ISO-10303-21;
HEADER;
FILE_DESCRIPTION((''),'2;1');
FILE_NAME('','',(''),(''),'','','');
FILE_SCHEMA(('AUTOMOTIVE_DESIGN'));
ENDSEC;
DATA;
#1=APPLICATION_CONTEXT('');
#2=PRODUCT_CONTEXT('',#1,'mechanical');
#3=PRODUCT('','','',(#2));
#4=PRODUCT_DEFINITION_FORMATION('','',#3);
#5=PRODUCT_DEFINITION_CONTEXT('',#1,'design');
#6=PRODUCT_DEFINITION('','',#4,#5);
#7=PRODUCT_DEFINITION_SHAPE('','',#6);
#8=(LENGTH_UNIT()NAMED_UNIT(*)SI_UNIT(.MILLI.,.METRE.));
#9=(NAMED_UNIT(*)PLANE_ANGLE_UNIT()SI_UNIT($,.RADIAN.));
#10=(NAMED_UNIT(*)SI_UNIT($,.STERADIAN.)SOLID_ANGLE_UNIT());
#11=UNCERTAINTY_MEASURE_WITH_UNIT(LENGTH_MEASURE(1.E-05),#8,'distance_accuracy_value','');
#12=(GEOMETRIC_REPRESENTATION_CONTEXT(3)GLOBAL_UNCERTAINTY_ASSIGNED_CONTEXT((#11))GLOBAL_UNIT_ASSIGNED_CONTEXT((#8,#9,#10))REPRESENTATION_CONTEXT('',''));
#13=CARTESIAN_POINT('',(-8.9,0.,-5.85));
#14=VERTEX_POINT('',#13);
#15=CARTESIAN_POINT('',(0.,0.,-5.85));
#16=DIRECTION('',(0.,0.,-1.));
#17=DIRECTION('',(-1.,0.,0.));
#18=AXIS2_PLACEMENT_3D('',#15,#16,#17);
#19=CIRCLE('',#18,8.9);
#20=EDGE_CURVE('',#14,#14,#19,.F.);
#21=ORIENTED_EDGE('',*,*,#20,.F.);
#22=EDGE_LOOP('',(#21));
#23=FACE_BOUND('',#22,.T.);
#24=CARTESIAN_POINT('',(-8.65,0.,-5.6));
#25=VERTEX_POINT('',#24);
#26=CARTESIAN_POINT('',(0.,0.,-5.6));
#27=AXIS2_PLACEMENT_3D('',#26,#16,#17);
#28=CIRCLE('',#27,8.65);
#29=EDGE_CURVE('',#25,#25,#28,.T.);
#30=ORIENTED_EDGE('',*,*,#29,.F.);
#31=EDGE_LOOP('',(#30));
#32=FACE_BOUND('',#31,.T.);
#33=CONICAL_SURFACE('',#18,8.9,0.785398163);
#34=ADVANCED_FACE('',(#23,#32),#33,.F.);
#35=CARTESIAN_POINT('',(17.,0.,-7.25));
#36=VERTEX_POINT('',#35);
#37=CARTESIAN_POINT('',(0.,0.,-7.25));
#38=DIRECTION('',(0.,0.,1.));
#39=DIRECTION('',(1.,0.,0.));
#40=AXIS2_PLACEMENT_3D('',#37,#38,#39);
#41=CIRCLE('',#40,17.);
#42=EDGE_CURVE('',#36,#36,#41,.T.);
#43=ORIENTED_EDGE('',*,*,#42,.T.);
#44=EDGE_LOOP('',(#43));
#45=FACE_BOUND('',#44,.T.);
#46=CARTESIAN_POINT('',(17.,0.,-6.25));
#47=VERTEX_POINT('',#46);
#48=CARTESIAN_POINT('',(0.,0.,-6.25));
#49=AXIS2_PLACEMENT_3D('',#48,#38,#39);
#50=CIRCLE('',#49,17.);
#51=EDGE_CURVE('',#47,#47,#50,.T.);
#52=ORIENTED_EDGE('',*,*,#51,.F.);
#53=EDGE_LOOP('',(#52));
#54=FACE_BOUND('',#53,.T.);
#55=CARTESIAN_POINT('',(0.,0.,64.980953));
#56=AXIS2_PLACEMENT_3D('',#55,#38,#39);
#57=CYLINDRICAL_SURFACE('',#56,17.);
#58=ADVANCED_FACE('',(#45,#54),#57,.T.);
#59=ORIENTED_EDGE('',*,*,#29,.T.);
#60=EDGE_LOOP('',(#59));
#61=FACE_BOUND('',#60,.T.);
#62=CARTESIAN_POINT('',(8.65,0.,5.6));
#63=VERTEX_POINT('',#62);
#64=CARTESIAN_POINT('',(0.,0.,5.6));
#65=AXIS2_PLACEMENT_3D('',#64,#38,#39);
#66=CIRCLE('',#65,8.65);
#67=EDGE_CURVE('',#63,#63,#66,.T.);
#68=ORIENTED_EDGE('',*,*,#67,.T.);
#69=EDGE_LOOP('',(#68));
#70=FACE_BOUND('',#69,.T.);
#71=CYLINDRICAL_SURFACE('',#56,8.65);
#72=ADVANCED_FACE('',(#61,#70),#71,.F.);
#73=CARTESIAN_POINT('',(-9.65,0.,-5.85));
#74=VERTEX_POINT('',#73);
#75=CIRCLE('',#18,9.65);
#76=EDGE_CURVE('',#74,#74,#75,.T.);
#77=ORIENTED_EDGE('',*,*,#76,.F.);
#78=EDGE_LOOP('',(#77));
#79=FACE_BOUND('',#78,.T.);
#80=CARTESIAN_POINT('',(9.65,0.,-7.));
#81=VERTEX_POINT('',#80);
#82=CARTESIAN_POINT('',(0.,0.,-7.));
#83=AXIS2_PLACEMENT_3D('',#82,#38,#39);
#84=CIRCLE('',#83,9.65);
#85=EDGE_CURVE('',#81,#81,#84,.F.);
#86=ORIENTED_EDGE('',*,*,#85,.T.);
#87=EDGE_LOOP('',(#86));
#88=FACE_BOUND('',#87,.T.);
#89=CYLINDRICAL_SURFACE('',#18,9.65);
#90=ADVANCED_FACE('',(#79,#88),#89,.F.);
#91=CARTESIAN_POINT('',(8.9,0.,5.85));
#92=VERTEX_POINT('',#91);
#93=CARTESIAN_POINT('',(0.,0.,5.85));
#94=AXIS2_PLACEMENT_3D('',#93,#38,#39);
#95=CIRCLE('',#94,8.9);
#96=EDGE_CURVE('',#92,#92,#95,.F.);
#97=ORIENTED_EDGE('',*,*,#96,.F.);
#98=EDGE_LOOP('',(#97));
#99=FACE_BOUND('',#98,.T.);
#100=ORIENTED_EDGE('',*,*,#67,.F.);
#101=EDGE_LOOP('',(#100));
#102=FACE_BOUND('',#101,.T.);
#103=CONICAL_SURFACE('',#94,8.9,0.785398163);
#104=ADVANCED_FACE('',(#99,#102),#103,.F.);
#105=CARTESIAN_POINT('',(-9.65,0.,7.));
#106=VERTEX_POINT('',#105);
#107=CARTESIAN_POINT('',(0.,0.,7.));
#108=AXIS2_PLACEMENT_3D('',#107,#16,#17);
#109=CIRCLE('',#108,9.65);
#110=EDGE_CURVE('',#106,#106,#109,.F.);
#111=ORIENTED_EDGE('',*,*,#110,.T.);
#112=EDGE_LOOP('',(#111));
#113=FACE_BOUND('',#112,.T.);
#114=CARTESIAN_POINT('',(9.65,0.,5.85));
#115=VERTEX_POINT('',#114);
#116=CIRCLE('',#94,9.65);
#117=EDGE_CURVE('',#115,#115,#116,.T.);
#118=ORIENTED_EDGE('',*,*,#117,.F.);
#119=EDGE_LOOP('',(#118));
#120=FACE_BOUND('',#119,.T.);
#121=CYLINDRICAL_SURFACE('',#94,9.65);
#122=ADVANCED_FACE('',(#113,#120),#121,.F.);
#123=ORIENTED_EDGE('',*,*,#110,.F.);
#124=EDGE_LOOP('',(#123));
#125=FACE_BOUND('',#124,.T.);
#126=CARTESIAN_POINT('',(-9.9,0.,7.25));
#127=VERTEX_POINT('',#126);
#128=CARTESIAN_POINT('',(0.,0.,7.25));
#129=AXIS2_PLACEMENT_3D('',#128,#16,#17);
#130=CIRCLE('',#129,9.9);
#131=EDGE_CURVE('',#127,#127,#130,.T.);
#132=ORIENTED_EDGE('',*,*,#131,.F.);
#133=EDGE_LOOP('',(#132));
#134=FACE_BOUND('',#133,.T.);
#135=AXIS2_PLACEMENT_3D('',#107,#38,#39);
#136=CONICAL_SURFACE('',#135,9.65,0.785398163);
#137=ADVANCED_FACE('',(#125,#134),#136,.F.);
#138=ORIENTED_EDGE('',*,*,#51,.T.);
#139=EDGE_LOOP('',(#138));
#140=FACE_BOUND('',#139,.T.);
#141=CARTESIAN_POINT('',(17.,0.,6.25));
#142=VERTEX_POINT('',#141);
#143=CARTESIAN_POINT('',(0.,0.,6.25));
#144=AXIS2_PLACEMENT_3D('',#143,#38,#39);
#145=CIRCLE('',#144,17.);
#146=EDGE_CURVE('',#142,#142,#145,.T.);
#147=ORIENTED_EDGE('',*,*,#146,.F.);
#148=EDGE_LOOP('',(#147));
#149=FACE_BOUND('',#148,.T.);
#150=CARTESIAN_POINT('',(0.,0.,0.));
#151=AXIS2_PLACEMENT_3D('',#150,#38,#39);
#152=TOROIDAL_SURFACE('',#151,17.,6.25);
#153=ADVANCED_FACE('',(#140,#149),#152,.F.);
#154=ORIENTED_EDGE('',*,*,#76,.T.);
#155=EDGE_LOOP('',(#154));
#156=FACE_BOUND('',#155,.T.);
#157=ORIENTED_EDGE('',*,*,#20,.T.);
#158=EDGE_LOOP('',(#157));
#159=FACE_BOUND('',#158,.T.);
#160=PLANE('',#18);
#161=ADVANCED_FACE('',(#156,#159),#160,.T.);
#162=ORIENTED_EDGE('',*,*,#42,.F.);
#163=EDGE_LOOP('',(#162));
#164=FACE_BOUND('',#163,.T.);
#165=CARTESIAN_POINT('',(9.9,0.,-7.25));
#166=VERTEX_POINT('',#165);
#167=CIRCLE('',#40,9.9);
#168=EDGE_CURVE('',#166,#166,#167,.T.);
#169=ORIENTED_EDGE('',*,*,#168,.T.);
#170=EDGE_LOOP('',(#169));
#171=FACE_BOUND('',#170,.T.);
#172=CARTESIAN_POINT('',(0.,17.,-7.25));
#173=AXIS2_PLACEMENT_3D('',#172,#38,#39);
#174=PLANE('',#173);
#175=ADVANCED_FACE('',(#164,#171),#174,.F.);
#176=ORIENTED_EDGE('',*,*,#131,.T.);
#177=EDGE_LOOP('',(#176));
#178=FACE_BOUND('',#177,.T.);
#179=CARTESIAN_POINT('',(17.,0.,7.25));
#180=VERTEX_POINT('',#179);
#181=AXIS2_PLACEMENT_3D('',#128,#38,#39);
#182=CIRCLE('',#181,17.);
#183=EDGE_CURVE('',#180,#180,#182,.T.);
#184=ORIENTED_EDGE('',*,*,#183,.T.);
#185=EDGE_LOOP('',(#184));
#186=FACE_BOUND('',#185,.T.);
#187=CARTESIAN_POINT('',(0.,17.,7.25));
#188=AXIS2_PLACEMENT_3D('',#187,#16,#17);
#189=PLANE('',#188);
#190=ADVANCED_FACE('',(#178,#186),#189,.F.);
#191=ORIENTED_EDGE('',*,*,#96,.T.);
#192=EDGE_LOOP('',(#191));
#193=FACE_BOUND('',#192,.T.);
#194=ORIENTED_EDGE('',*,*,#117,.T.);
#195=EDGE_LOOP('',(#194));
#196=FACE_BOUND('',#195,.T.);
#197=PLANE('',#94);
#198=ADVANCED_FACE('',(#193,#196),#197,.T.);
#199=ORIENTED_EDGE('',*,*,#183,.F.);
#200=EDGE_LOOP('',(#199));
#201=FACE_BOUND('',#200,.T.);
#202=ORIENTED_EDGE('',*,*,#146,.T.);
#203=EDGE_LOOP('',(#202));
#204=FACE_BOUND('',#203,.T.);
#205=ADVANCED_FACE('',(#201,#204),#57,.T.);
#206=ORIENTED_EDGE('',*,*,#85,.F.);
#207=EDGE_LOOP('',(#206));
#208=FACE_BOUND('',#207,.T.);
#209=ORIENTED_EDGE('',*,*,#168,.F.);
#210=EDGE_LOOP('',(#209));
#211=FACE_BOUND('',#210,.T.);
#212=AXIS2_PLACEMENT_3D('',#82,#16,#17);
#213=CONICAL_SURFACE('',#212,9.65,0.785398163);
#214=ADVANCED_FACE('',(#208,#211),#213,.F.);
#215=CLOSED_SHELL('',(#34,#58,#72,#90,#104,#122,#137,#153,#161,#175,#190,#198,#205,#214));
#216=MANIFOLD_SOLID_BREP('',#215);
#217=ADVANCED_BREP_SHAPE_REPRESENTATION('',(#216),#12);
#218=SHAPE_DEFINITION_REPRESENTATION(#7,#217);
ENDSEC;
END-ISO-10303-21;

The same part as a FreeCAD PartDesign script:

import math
import FreeCAD as App
import Part
import Sketcher
from FreeCAD import Vector


def edges_at(feature, points):
    """Names of the edges that pass closest to the given points."""
    edges = feature.Shape.Edges
    near = lambda p: min(range(len(edges)), key=lambda i: edges[i].distToShape(Part.Vertex(*p))[0])
    return sorted({f"Edge{near(p) + 1}" for p in points})

doc = App.newDocument("Part")
body = doc.addObject("PartDesign::Body", "Body")

# Sketch on YZ plane
sketch1 = doc.addObject("Sketcher::SketchObject", "Sketch")
body.addObject(sketch1)
sketch1.AttachmentSupport = (doc.YZ_Plane, [""])
sketch1.MapMode = "FlatFace"
sketch1.addGeometry(Part.LineSegment(Vector(17, 6.2, 0), Vector(17, 7.2, 0)), False)
sketch1.addGeometry(Part.LineSegment(Vector(17, 7.2, 0), Vector(8.7, 7.2, 0)), False)
sketch1.addGeometry(Part.LineSegment(Vector(8.7, 7.2, 0), Vector(8.7, -7.2, 0)), False)
sketch1.addGeometry(Part.LineSegment(Vector(8.7, -7.2, 0), Vector(17, -7.2, 0)), False)
sketch1.addGeometry(Part.LineSegment(Vector(17, -7.2, 0), Vector(17, -6.2, 0)), False)
sketch1.addGeometry(Part.ArcOfCircle(Part.Circle(Vector(17, 0, 0), Vector(0, 0, 1), 6.2), math.radians(90), math.radians(270)), False)
sketch1.addConstraint(Sketcher.Constraint("Coincident", 0, 2, 1, 1))
sketch1.addConstraint(Sketcher.Constraint("Coincident", 1, 2, 2, 1))
sketch1.addConstraint(Sketcher.Constraint("Coincident", 2, 2, 3, 1))
sketch1.addConstraint(Sketcher.Constraint("Coincident", 3, 2, 4, 1))
sketch1.addConstraint(Sketcher.Constraint("Coincident", 4, 2, 5, 2))
sketch1.addConstraint(Sketcher.Constraint("Coincident", 5, 1, 0, 1))
sketch1.addConstraint(Sketcher.Constraint("Vertical", 0))
sketch1.addConstraint(Sketcher.Constraint("Horizontal", 1))
sketch1.addConstraint(Sketcher.Constraint("Vertical", 2))
sketch1.addConstraint(Sketcher.Constraint("Horizontal", 3))
sketch1.addConstraint(Sketcher.Constraint("Vertical", 4))
sketch1.addConstraint(Sketcher.Constraint("Symmetric", 0, 2, 3, 2, -1))
sketch1.addConstraint(Sketcher.Constraint("PointOnObject", 5, 3, -1))
sketch1.addConstraint(Sketcher.Constraint("Vertical", 5, 3, 0, 2))
sketch1.addConstraint(Sketcher.Constraint("DistanceY", 0, 1, 0, 2, 1.0))
sketch1.addConstraint(Sketcher.Constraint("Radius", 5, 6.25))
sketch1.addConstraint(Sketcher.Constraint("DistanceX", -1, 1, 5, 3, 17.0))
sketch1.addConstraint(Sketcher.Constraint("DistanceX", 1, 2, 1, 1, 8.35))
revolution = doc.addObject("PartDesign::Revolution", "Revolution")
body.addObject(revolution)
revolution.Profile = sketch1
revolution.ReferenceAxis = (sketch1, ["V_Axis"])
revolution.Angle = 360

# Sketch on XY plane
sketch2 = doc.addObject("Sketcher::SketchObject", "Sketch001")
body.addObject(sketch2)
sketch2.AttachmentSupport = (doc.XY_Plane, [""])
sketch2.MapMode = "FlatFace"
sketch2.AttachmentOffset = App.Placement(Vector(0, 0, -7.25), App.Rotation())
sketch2.addGeometry(Part.Circle(Vector(0, 0, 0), Vector(0, 0, 1), 10), False)
sketch2.addConstraint(Sketcher.Constraint("Coincident", 0, 3, -1, 1))
sketch2.addConstraint(Sketcher.Constraint("Diameter", 0, 19.3))
pocket1 = doc.addObject("PartDesign::Pocket", "Pocket")
body.addObject(pocket1)
pocket1.Profile = sketch2
pocket1.Length = 1.4
pocket1.Reversed = True

# Sketch on XY plane
sketch3 = doc.addObject("Sketcher::SketchObject", "Sketch002")
body.addObject(sketch3)
sketch3.AttachmentSupport = (doc.XY_Plane, [""])
sketch3.MapMode = "FlatFace"
sketch3.AttachmentOffset = App.Placement(Vector(0, 0, 5.85), App.Rotation())
sketch3.addGeometry(Part.Circle(Vector(0, 0, 0), Vector(0, 0, 1), 10), False)
sketch3.addConstraint(Sketcher.Constraint("Coincident", 0, 3, -1, 1))
sketch3.addConstraint(Sketcher.Constraint("Diameter", 0, 19.3))
pocket2 = doc.addObject("PartDesign::Pocket", "Pocket001")
body.addObject(pocket2)
pocket2.Profile = sketch3
pocket2.Length = 1.4
pocket2.Reversed = True
doc.recompute()

chamfer = doc.addObject("PartDesign::Chamfer", "Chamfer")
body.addObject(chamfer)
chamfer.Base = (pocket2, edges_at(pocket2, [
    (9.65, 0, -7.25),
    (-8.65, 0, -5.85),
    (9.65, 0, 7.25),
    (-8.65, 0, 5.85),
]))
chamfer.Size = 0.25

doc.recompute()
